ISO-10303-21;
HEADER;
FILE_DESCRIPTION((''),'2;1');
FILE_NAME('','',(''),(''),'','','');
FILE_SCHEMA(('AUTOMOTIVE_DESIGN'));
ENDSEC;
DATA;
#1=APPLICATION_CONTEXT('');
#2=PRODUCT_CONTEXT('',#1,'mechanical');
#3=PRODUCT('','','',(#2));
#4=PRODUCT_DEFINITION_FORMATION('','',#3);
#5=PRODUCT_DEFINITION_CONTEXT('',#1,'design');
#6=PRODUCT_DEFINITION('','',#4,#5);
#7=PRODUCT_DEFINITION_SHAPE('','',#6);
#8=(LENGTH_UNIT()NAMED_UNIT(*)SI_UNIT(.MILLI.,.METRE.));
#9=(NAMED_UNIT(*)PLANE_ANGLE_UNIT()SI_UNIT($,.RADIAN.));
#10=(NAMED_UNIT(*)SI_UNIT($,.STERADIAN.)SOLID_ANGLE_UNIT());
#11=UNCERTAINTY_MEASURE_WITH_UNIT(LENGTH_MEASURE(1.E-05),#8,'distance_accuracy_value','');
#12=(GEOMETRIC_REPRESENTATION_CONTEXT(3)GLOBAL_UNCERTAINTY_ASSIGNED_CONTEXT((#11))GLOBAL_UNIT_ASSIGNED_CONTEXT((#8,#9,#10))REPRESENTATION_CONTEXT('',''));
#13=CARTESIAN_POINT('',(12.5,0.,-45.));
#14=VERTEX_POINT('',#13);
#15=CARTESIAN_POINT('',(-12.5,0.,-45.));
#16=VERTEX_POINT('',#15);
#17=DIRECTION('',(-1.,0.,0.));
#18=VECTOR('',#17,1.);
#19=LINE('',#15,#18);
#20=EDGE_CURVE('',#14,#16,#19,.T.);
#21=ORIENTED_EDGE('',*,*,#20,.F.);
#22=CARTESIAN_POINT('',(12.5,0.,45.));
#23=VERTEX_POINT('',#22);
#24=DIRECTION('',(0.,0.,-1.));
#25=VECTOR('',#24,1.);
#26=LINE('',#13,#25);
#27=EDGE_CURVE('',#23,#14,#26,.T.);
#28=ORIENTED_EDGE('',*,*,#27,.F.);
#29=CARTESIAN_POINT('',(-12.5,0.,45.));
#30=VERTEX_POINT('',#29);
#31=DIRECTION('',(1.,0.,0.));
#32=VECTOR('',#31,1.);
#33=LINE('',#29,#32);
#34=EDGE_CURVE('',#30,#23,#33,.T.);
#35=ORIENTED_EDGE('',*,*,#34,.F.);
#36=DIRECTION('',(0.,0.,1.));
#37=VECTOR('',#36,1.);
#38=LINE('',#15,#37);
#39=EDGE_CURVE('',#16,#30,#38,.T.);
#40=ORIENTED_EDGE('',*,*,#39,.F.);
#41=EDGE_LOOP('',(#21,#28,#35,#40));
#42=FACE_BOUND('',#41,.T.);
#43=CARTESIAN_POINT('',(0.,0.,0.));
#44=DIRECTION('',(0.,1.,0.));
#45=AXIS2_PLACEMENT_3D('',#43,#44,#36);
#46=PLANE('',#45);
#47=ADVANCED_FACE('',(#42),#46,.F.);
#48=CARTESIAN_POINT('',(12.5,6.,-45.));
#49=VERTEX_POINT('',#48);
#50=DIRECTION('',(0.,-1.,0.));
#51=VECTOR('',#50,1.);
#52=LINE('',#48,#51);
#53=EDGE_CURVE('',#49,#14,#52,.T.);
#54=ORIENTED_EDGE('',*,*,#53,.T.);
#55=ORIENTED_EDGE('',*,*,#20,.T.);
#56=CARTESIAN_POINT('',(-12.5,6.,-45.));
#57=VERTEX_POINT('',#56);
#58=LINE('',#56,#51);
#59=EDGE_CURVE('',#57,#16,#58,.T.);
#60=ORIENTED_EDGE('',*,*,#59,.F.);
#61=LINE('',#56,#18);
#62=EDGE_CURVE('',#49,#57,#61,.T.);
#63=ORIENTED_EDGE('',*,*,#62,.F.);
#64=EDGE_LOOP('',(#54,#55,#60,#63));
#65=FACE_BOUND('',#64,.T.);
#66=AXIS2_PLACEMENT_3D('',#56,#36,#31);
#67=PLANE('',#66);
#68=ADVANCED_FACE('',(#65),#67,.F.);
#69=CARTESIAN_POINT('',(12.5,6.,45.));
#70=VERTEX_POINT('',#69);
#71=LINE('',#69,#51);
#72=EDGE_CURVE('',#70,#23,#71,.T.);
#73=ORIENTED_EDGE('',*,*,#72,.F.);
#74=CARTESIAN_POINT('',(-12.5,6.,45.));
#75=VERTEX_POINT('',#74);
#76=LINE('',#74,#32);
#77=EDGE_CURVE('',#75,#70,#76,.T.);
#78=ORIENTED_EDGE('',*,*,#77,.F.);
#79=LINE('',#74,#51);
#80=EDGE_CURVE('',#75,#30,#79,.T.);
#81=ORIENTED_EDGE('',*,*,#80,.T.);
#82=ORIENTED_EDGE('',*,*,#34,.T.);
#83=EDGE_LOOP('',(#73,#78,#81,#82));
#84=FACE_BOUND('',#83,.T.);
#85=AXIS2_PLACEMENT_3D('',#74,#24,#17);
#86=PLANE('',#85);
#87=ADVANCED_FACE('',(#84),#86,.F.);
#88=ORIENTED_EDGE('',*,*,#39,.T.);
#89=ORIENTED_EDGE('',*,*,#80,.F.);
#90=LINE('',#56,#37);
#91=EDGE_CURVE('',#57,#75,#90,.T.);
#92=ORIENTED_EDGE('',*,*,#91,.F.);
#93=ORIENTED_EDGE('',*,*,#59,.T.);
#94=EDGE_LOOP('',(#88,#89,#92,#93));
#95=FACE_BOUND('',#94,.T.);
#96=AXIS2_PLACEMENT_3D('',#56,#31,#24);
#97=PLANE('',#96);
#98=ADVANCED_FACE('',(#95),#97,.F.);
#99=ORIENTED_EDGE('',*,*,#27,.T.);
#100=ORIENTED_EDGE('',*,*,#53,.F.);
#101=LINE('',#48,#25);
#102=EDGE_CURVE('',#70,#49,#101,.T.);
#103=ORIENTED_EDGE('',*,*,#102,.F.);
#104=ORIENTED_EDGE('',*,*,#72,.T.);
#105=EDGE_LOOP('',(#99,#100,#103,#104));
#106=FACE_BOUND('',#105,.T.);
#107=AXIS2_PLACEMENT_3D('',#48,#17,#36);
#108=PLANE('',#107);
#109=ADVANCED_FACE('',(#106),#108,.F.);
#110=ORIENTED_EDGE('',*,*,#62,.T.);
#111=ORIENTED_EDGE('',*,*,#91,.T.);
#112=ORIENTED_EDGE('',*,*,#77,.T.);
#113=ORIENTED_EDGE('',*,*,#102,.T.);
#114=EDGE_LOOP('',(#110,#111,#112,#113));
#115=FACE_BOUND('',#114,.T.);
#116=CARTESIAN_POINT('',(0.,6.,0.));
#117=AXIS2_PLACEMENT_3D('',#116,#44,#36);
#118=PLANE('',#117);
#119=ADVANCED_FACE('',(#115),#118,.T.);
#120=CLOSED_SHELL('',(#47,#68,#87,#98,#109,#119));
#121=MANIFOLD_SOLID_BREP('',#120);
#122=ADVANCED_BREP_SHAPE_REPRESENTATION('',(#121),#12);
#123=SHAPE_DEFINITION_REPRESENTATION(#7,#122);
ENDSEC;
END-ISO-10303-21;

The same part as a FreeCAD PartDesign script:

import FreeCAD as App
import Part
import Sketcher


def add_polygon(sketch, points):
    """Adds a closed chain of lines whose ends are joined by coincident constraints."""
    first, n = sketch.GeometryCount, len(points)
    for a, b in zip(points, points[1:] + points[:1]):
        sketch.addGeometry(Part.LineSegment(App.Vector(*a, 0), App.Vector(*b, 0)), False)
    for i in range(n):
        sketch.addConstraint(Sketcher.Constraint("Coincident", first + i, 2, first + (i + 1) % n, 1))

doc = App.newDocument("Part")
params = doc.addObject("Spreadsheet::Sheet", "Params")
for row, (alias, value) in enumerate([
    ("sketch1_width", "25 mm"),
    ("sketch1_height", "90 mm"),
    ("pad1_length", "6 mm"),
], start=1):
    params.set(f"A{row}", alias)
    params.set(f"B{row}", "=" + value)
    params.setAlias(f"B{row}", alias)

body = doc.addObject("PartDesign::Body", "Body")

# Sketch on XZ plane
sketch1 = body.newObject("Sketcher::SketchObject", "Sketch")
sketch1.AttachmentSupport = (doc.getObject("XZ_Plane"), [""])
sketch1.MapMode = "FlatFace"
add_polygon(sketch1, [(-12.5, -45), (-12.5, 45), (12.5, 45), (12.5, -45)])  # lines 0-3
sketch1.addConstraint([
    Sketcher.Constraint("Vertical", 0),
    Sketcher.Constraint("Horizontal", 1),
    Sketcher.Constraint("Vertical", 2),
    Sketcher.Constraint("Horizontal", 3),
    Sketcher.Constraint("Symmetric", 0, 2, 2, 2, -1, 1),
    Sketcher.Constraint("DistanceX", 1, 1, 1, 2, 25.0),
    Sketcher.Constraint("DistanceY", 0, 1, 0, 2, 90.0),
])
sketch1.setExpression("Constraints[9]", "Params.sketch1_width")
sketch1.setExpression("Constraints[10]", "Params.sketch1_height")
pad1 = body.newObject("PartDesign::Pad", "Pad")
pad1.Profile = sketch1
pad1.setExpression("Length", "Params.pad1_length")
pad1.Reversed = True

doc.recompute()
